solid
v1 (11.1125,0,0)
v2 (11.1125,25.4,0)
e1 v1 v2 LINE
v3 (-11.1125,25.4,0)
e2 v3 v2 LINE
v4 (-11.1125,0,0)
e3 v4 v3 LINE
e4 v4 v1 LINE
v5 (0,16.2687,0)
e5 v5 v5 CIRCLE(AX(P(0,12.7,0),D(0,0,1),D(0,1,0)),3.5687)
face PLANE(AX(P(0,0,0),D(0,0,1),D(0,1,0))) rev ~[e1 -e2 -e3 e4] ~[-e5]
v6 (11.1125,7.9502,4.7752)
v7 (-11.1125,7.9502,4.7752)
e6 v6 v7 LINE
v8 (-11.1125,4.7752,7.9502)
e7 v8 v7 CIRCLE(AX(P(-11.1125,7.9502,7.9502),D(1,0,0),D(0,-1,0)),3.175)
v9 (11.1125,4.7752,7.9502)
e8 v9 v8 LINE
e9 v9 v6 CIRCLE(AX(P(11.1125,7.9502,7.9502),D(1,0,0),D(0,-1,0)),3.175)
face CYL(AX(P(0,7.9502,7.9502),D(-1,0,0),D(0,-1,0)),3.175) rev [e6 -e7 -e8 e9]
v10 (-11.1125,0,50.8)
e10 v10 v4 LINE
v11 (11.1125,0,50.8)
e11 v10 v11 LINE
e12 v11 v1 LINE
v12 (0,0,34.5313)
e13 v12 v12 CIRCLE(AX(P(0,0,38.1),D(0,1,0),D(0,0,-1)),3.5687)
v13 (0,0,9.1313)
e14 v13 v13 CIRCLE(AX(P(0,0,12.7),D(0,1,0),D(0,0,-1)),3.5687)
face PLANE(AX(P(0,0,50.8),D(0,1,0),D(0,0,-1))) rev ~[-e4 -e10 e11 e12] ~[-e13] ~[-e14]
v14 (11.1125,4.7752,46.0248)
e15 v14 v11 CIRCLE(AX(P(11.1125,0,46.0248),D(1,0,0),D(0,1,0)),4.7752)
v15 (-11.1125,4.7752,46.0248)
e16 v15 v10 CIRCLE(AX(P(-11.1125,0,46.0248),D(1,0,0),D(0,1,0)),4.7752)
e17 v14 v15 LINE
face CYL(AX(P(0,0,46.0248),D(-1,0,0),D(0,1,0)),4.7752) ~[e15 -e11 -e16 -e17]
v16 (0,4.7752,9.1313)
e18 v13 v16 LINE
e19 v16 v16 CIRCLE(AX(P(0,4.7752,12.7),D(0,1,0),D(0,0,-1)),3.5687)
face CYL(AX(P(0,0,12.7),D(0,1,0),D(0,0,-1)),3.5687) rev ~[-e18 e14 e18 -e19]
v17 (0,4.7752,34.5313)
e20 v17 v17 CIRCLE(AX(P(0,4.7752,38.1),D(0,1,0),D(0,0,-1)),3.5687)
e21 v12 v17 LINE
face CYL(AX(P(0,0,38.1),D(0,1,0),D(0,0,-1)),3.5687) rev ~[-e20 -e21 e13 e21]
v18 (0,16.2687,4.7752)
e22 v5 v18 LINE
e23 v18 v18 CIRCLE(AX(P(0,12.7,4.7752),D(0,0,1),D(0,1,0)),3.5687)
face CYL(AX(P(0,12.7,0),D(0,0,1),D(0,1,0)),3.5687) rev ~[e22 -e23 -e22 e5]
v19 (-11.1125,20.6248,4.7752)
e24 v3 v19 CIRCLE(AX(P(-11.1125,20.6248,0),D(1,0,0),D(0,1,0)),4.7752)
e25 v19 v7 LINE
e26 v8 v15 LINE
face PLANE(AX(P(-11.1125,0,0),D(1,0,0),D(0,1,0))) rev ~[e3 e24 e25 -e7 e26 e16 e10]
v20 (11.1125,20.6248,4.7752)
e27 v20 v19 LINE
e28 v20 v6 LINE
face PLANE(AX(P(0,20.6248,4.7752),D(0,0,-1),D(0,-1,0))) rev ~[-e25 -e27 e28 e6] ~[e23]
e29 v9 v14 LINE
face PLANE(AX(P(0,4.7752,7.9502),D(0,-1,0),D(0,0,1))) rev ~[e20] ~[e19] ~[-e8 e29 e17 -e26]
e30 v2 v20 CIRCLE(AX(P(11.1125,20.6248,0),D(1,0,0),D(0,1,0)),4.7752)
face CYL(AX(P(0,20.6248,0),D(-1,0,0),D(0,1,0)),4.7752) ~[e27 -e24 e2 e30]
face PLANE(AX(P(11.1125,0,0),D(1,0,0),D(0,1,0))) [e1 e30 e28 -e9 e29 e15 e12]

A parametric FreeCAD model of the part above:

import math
import FreeCAD as App
import Part
import Sketcher
Q = App.Units.Quantity

doc = App.newDocument("Part")
body = doc.addObject("PartDesign::Body", "Body")

# Sketch on YZ plane
sketch1 = body.newObject("Sketcher::SketchObject", "Sketch")
sketch1.AttachmentSupport = (doc.getObject("YZ_Plane"), [""])
sketch1.MapMode = "FlatFace"
sketch1.addGeometry(Part.ArcOfCircle(Part.Circle(App.Vector(0, 46, 0), App.Vector(0, 0, 1), 4.8), math.radians(0), math.radians(90)), False)
sketch1.addGeometry(Part.LineSegment(App.Vector(0, 50.8, 0), App.Vector(0, 0, 0)), False)
sketch1.addGeometry(Part.LineSegment(App.Vector(0, 0, 0), App.Vector(25.4, 0, 0)), False)
sketch1.addGeometry(Part.ArcOfCircle(Part.Circle(App.Vector(20.6, 0, 0), App.Vector(0, 0, 1), 4.8), math.radians(0), math.radians(90)), False)
sketch1.addGeometry(Part.LineSegment(App.Vector(20.6, 4.8, 0), App.Vector(8, 4.8, 0)), False)
sketch1.addGeometry(Part.ArcOfCircle(Part.Circle(App.Vector(8, 8, 0), App.Vector(0, 0, 1), 3.2), math.radians(180), math.radians(270)), False)
sketch1.addGeometry(Part.LineSegment(App.Vector(4.8, 8, 0), App.Vector(4.8, 46, 0)), False)
sketch1.addConstraint(Sketcher.Constraint("Coincident", 0, 2, 1, 1))
sketch1.addConstraint(Sketcher.Constraint("Coincident", 1, 2, 2, 1))
sketch1.addConstraint(Sketcher.Constraint("Coincident", 2, 2, 3, 1))
sketch1.addConstraint(Sketcher.Constraint("Tangent", 3, 2, 4, 1))
sketch1.addConstraint(Sketcher.Constraint("Tangent", 4, 2, 5, 2))
sketch1.addConstraint(Sketcher.Constraint("Tangent", 5, 1, 6, 1))
sketch1.addConstraint(Sketcher.Constraint("Tangent", 6, 2, 0, 1))
sketch1.addConstraint(Sketcher.Constraint("Vertical", 1))
sketch1.addConstraint(Sketcher.Constraint("Horizontal", 2))
sketch1.addConstraint(Sketcher.Constraint("Horizontal", 4))
sketch1.addConstraint(Sketcher.Constraint("Vertical", 6))
sketch1.addConstraint(Sketcher.Constraint("Coincident", 1, 2, -1, 1))
sketch1.addConstraint(Sketcher.Constraint("Equal", 0, 3))
sketch1.addConstraint(Sketcher.Constraint("PointOnObject", 0, 3, -2))
sketch1.addConstraint(Sketcher.Constraint("PointOnObject", 3, 3, -1))
sketch1.addConstraint(Sketcher.Constraint("DistanceX", 2, 1, 2, 2, Q("1 in")))
sketch1.addConstraint(Sketcher.Constraint("DistanceY", 1, 2, 1, 1, Q("2 in")))
sketch1.addConstraint(Sketcher.Constraint("Radius", 0, Q("0.188 in")))
sketch1.addConstraint(Sketcher.Constraint("Radius", 5, Q("0.125 in")))
pad1 = body.newObject("PartDesign::Pad", "Pad")
pad1.Profile = sketch1
pad1.Length = Q("0.875 in")
pad1.Midplane = True

# Sketch on XY plane
sketch2 = body.newObject("Sketcher::SketchObject", "Sketch001")
sketch2.AttachmentSupport = (doc.getObject("XY_Plane"), [""])
sketch2.MapMode = "FlatFace"
sketch2.addGeometry(Part.Circle(App.Vector(0, 12.7, 0), App.Vector(0, 0, 1), 3.6), False)
sketch2.addConstraint(Sketcher.Constraint("PointOnObject", 0, 3, -2))
sketch2.addConstraint(Sketcher.Constraint("Diameter", 0, Q("0.281 in")))
sketch2.addConstraint(Sketcher.Constraint("DistanceY", -1, 1, 0, 3, Q("0.5 in")))
doc.recompute()
hole = body.newObject("PartDesign::Hole", "Hole")
hole.Profile = sketch2
hole.ThreadType = "None"
hole.Diameter = Q("0.281 in")
hole.DepthType = "Dimension"
hole.Depth = Q("0.188 in")
hole.DrillPoint = "Flat"
hole.Reversed = True

# Sketch on XZ plane
sketch3 = body.newObject("Sketcher::SketchObject", "Sketch002")
sketch3.AttachmentSupport = (doc.getObject("XZ_Plane"), [""])
sketch3.MapMode = "FlatFace"
sketch3.addGeometry(Part.Circle(App.Vector(0, 12.7, 0), App.Vector(0, 0, 1), 3.6), False)
sketch3.addConstraint(Sketcher.Constraint("PointOnObject", 0, 3, -2))
sketch3.addConstraint(Sketcher.Constraint("Diameter", 0, Q("0.281 in")))
sketch3.addConstraint(Sketcher.Constraint("DistanceY", -1, 1, 0, 3, Q("0.5 in")))
doc.recompute()
hole2 = body.newObject("PartDesign::Hole", "Hole001")
hole2.Profile = sketch3
hole2.ThreadType = "None"
hole2.Diameter = Q("0.281 in")
hole2.DepthType = "Dimension"
hole2.Depth = Q("0.188 in")
hole2.DrillPoint = "Flat"

# Sketch on XZ plane
sketch4 = body.newObject("Sketcher::SketchObject", "Sketch003")
sketch4.AttachmentSupport = (doc.getObject("XZ_Plane"), [""])
sketch4.MapMode = "FlatFace"
sketch4.addGeometry(Part.Circle(App.Vector(0, 38.1, 0), App.Vector(0, 0, 1), 3.6), False)
sketch4.addConstraint(Sketcher.Constraint("PointOnObject", 0, 3, -2))
sketch4.addConstraint(Sketcher.Constraint("Diameter", 0, Q("0.281 in")))
sketch4.addConstraint(Sketcher.Constraint("DistanceY", -1, 1, 0, 3, Q("1.5 in")))
doc.recompute()
hole3 = body.newObject("PartDesign::Hole", "Hole002")
hole3.Profile = sketch4
hole3.ThreadType = "None"
hole3.Diameter = Q("0.281 in")
hole3.DepthType = "Dimension"
hole3.Depth = Q("0.188 in")
hole3.DrillPoint = "Flat"

doc.recompute()
